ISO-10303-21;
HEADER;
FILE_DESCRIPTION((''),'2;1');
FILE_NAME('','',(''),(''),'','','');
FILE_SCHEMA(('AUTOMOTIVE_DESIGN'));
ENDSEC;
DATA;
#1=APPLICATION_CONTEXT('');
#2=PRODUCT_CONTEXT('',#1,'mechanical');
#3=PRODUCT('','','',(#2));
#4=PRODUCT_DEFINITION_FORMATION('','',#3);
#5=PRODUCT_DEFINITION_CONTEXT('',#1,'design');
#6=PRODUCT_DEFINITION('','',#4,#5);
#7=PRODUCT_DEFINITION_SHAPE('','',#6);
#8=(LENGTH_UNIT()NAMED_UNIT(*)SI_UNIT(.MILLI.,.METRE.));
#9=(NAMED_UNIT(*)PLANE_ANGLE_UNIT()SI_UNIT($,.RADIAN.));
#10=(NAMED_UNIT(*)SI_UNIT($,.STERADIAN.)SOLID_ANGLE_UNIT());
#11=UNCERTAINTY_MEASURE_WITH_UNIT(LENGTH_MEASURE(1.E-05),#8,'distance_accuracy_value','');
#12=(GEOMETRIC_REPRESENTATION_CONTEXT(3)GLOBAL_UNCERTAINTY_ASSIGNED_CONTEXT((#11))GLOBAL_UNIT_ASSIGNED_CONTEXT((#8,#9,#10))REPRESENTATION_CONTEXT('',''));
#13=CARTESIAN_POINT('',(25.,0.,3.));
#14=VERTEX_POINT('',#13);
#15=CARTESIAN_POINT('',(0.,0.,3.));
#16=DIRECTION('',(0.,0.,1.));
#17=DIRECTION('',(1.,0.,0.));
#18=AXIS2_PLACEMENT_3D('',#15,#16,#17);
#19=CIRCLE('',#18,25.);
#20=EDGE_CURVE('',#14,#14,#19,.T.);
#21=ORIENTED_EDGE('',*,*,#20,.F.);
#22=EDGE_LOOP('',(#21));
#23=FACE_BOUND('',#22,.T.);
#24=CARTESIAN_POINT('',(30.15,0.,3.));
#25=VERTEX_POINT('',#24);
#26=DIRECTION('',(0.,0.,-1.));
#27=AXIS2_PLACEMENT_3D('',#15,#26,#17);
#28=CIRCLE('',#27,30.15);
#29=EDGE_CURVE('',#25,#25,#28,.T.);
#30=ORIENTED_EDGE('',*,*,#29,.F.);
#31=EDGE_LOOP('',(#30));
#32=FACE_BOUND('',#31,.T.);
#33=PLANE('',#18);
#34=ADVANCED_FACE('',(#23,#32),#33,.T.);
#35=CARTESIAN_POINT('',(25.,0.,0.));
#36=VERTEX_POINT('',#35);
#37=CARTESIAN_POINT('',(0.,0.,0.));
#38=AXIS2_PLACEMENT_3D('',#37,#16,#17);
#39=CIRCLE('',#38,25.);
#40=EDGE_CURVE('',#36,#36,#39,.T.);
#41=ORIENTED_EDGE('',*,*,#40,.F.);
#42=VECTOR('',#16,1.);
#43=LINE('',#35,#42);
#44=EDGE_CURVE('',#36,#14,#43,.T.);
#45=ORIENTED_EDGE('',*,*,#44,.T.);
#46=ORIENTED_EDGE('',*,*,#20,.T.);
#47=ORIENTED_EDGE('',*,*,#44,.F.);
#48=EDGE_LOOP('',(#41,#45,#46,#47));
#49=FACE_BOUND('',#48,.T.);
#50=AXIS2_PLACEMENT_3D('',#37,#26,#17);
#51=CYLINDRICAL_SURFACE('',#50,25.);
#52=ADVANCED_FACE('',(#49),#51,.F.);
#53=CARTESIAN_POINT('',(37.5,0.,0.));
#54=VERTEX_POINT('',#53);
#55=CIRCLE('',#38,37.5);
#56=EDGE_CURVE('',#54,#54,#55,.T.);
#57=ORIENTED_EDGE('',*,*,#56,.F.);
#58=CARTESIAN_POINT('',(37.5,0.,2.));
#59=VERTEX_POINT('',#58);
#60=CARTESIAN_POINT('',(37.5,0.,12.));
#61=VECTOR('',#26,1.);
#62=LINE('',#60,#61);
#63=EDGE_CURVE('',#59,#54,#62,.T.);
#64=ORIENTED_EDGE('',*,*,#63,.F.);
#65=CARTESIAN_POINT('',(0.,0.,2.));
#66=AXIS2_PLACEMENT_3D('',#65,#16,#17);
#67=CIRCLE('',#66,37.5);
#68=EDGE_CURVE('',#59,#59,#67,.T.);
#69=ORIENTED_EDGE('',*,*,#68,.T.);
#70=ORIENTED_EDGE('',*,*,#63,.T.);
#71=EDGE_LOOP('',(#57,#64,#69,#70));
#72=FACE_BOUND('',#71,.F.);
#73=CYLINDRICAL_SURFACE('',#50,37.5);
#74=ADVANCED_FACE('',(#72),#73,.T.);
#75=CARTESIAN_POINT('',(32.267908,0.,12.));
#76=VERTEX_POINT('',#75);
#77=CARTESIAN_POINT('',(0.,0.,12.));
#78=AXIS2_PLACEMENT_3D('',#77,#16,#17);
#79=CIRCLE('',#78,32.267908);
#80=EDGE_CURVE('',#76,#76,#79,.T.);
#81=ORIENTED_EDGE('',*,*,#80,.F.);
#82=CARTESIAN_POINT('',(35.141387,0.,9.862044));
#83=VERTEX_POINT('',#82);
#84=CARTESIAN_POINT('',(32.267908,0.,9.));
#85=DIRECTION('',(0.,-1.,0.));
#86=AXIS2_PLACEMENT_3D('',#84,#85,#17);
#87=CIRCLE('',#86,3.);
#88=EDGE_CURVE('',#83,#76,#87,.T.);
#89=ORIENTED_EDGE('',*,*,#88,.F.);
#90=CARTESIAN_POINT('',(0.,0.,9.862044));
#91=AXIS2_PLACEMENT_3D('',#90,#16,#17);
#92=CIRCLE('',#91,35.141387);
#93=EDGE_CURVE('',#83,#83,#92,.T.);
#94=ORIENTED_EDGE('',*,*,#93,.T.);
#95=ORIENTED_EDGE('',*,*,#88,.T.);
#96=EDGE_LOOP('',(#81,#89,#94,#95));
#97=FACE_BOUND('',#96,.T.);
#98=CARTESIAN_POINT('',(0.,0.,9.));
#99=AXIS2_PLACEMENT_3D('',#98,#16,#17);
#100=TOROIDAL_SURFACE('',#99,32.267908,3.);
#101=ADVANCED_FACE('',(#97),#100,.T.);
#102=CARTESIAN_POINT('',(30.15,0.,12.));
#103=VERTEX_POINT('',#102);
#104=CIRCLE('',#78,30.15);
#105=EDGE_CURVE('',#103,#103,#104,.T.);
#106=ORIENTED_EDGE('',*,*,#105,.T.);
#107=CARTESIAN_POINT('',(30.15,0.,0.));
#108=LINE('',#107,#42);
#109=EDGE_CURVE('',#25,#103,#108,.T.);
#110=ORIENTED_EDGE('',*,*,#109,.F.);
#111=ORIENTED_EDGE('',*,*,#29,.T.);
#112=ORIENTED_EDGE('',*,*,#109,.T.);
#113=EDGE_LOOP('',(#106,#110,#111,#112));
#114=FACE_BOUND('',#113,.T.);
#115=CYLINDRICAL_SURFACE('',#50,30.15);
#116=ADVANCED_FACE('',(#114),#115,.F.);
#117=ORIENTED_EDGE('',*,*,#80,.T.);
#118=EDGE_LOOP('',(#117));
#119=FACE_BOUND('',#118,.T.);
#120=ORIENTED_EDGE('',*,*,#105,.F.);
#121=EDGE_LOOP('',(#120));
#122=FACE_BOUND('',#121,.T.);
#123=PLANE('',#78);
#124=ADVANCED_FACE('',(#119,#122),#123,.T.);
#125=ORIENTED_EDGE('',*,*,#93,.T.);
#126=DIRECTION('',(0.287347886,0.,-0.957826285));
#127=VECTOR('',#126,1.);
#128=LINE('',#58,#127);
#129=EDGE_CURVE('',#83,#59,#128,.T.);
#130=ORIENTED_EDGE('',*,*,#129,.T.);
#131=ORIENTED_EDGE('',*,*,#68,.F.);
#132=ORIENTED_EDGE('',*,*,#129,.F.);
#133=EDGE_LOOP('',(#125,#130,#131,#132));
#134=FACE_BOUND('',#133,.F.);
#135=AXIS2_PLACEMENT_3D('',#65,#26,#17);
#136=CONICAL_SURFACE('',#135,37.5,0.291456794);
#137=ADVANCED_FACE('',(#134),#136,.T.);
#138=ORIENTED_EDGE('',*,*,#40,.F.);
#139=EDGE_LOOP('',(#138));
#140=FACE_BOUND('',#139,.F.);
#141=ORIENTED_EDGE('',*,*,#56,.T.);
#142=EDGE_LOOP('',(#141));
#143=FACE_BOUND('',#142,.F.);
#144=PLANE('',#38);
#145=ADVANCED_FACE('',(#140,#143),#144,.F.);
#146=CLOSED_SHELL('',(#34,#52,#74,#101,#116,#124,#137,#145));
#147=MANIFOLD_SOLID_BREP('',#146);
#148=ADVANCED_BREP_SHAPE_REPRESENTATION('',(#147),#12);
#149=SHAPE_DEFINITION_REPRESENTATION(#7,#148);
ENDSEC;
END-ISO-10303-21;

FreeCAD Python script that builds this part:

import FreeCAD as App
import Part
import Sketcher
from FreeCAD import Vector


def edges_at(feature, points):
    """Names of the edges that pass closest to the given points."""
    edges = feature.Shape.Edges
    near = lambda p: min(range(len(edges)), key=lambda i: edges[i].distToShape(Part.Vertex(*p))[0])
    return sorted({f"Edge{near(p) + 1}" for p in points})

doc = App.newDocument("Part")
params = doc.addObject("Spreadsheet::Sheet", "Params")
for row, (alias, value) in enumerate([
    ("sketch1_diameter", "75 mm"),
    ("sketch1_diameter2", "50 mm"),
    ("pad1_length", "3 mm"),
    ("sketch2_diameter", "75 mm"),
    ("sketch2_diameter2", "60.3 mm"),
    ("pad2_length", "12 mm"),
    ("chamfer_size", "3 mm"),
    ("chamfer_size2", "10 mm"),
    ("fillet_radius", "3 mm"),
], start=1):
    params.set(f"A{row}", alias)
    params.set(f"B{row}", "=" + value)
    params.setAlias(f"B{row}", alias)

body = doc.addObject("PartDesign::Body", "Body")

sketch1 = body.newObject("Sketcher::SketchObject", "Sketch")
sketch1.AttachmentSupport = (doc.getObject("XY_Plane"), [""])
sketch1.MapMode = "FlatFace"
sketch1.addGeometry([
    Part.Circle(Vector(0, 0, 0), Vector(0, 0, 1), 38),
    Part.Circle(Vector(0, 0, 0), Vector(0, 0, 1), 25),
], False)
sketch1.addConstraint([
    Sketcher.Constraint("Coincident", 0, 3, -1, 1),
    Sketcher.Constraint("Coincident", 1, 3, -1, 1),
    Sketcher.Constraint("Diameter", 0, 75.0),
    Sketcher.Constraint("Diameter", 1, 50.0),
])
sketch1.setExpression("Constraints[2]", "Params.sketch1_diameter")
sketch1.setExpression("Constraints[3]", "Params.sketch1_diameter2")
pad1 = body.newObject("PartDesign::Pad", "Pad")
pad1.Profile = sketch1
pad1.setExpression("Length", "Params.pad1_length")

sketch2 = body.newObject("Sketcher::SketchObject", "Sketch001")
sketch2.AttachmentSupport = (doc.getObject("XY_Plane"), [""])
sketch2.MapMode = "FlatFace"
sketch2.addGeometry([
    Part.Circle(Vector(0, 0, 0), Vector(0, 0, 1), 38),
    Part.Circle(Vector(0, 0, 0), Vector(0, 0, 1), 30),
], False)
sketch2.addConstraint([
    Sketcher.Constraint("Coincident", 0, 3, -1, 1),
    Sketcher.Constraint("Coincident", 1, 3, -1, 1),
    Sketcher.Constraint("Diameter", 0, 75.0),
    Sketcher.Constraint("Diameter", 1, 60.3),
])
sketch2.setExpression("Constraints[2]", "Params.sketch2_diameter")
sketch2.setExpression("Constraints[3]", "Params.sketch2_diameter2")
pad2 = body.newObject("PartDesign::Pad", "Pad001")
pad2.Profile = sketch2
pad2.setExpression("Length", "Params.pad2_length")
doc.recompute()

chamfer = body.newObject("PartDesign::Chamfer", "Chamfer")
chamfer.Base = (pad2, edges_at(pad2, [(-37.5, 0, 12)]))
chamfer.ChamferType = "Two distances"
chamfer.setExpression("Size", "Params.chamfer_size")
chamfer.setExpression("Size2", "Params.chamfer_size2")
doc.recompute()

fillet = body.newObject("PartDesign::Fillet", "Fillet")
fillet.Base = (chamfer, edges_at(chamfer, [(-34.5, 0, 12)]))
fillet.setExpression("Radius", "Params.fillet_radius")

doc.recompute()
